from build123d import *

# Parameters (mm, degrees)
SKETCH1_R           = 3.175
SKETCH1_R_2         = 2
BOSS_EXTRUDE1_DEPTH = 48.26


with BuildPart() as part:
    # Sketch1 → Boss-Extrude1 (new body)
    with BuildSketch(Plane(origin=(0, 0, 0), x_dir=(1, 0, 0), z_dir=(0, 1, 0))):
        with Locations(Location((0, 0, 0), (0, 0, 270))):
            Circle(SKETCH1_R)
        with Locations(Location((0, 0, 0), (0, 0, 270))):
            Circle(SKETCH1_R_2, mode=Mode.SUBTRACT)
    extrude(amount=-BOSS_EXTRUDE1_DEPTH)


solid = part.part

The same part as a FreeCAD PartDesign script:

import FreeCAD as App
import Part
import Sketcher

V = App.Vector
Q = App.Units.Quantity

doc = App.newDocument("Part")
body = doc.addObject("PartDesign::Body", "Body")

# Sketch on XZ plane
sketch1 = body.newObject("Sketcher::SketchObject", "Sketch")
sketch1.AttachmentSupport = (doc.getObject("XZ_Plane"), [""])
sketch1.MapMode = "FlatFace"
sketch1.addGeometry([
    Part.Circle(V(0, 0, 0), V(0, 0, 1), 3.2),
    Part.Circle(V(0, 0, 0), V(0, 0, 1), 2),
], False)
sketch1.addConstraint([
    Sketcher.Constraint("Coincident", 0, 3, -1, 1),
    Sketcher.Constraint("Coincident", 1, 3, -1, 1),
    Sketcher.Constraint("Diameter", 0, Q("0.25 in")),
    Sketcher.Constraint("Diameter", 1, 4.0),
])
pad1 = body.newObject("PartDesign::Pad", "Pad")
pad1.Profile = sketch1
pad1.Length = Q("1.9 in")

doc.recompute()
